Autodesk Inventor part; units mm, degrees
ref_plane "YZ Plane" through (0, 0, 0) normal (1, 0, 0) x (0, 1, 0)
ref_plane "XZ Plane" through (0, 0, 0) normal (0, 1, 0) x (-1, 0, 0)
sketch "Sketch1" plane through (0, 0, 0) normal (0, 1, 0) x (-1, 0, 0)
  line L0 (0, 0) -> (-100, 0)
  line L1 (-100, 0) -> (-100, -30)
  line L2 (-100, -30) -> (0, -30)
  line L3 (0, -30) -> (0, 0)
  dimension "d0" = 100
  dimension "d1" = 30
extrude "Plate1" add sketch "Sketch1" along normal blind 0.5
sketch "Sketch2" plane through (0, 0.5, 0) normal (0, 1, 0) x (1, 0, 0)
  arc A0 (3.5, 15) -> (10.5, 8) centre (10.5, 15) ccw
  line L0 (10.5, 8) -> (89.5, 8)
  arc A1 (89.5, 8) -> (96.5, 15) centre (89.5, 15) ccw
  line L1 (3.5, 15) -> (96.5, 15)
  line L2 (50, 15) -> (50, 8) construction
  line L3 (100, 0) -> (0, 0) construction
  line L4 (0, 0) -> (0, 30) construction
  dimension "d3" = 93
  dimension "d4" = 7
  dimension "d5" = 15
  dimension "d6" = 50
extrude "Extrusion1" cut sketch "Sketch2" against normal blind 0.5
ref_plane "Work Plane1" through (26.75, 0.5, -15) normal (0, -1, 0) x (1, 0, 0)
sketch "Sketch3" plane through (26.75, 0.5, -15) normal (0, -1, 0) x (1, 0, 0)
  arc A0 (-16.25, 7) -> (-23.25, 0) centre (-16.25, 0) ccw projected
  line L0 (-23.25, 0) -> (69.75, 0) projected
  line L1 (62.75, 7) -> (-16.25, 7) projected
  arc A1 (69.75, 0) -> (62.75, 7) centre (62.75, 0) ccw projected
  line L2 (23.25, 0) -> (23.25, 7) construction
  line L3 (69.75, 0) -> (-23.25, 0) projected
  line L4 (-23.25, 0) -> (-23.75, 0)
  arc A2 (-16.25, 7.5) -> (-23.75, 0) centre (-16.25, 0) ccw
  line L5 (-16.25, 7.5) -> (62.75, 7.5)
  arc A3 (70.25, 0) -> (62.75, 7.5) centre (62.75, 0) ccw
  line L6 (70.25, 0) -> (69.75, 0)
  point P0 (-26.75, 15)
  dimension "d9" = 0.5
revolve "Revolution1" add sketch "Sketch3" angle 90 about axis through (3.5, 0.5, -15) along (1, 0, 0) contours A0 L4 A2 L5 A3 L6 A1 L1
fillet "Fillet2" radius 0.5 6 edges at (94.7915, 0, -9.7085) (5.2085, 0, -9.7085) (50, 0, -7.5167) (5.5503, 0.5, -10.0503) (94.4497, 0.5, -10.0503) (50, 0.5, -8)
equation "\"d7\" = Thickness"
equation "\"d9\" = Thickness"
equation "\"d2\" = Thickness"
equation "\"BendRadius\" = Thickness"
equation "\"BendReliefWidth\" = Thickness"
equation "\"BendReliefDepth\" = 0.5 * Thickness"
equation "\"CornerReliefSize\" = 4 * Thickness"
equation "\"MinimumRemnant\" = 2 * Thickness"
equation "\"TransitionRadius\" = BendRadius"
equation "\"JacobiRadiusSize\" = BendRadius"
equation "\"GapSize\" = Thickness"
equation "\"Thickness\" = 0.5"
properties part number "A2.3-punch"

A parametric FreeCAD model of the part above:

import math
import FreeCAD as App
import Part
import Sketcher

V = App.Vector


def edges_at(feature, points):
    """Names of the edges that pass closest to the given points."""
    edges = feature.Shape.Edges
    near = lambda p: min(range(len(edges)), key=lambda i: edges[i].distToShape(Part.Vertex(*p))[0])
    return sorted({f"Edge{near(p) + 1}" for p in points})

doc = App.newDocument("Part")
params = doc.addObject("Spreadsheet::Sheet", "Params")
for row, (alias, value) in enumerate([
    ("sketch1_width", "100 mm"),
    ("sketch1_height", "30 mm"),
    ("pad1_length", "0.5 mm"),
    ("sketch2_radius", "7 mm"),
    ("sketch2_width", "93 mm"),
    ("pocket1_length", "0.5 mm"),
    ("sketch3_width", "0.5 mm"),
    ("sketch3_radius", "7 mm"),
    ("sketch3_width2", "79 mm"),
    ("revolution_angle", "90 deg"),
    ("fillet_radius", "0.5 mm"),
], start=1):
    params.set(f"A{row}", alias)
    params.set(f"B{row}", "=" + value)
    params.setAlias(f"B{row}", alias)

body = doc.addObject("PartDesign::Body", "Body")

# Sketch on XZ plane
sketch1 = body.newObject("Sketcher::SketchObject", "Sketch")
sketch1.AttachmentSupport = (doc.getObject("XZ_Plane"), [""])
sketch1.MapMode = "FlatFace"
sketch1.addGeometry(Part.LineSegment(V(0, -30, 0), V(0, 0, 0)), False)
sketch1.addGeometry(Part.LineSegment(V(0, 0, 0), V(100, 0, 0)), False)
sketch1.addGeometry(Part.LineSegment(V(100, 0, 0), V(100, -30, 0)), False)
sketch1.addGeometry(Part.LineSegment(V(100, -30, 0), V(0, -30, 0)), False)
sketch1.addConstraint(Sketcher.Constraint("Coincident", 0, 2, 1, 1))
sketch1.addConstraint(Sketcher.Constraint("Coincident", 1, 2, 2, 1))
sketch1.addConstraint(Sketcher.Constraint("Coincident", 2, 2, 3, 1))
sketch1.addConstraint(Sketcher.Constraint("Coincident", 3, 2, 0, 1))
sketch1.addConstraint(Sketcher.Constraint("Vertical", 0))
sketch1.addConstraint(Sketcher.Constraint("Horizontal", 1))
sketch1.addConstraint(Sketcher.Constraint("Vertical", 2))
sketch1.addConstraint(Sketcher.Constraint("Horizontal", 3))
sketch1.addConstraint(Sketcher.Constraint("Coincident", 0, 2, -1, 1))
sketch1.addConstraint(Sketcher.Constraint("DistanceX", 1, 1, 1, 2, 100.0))
sketch1.addConstraint(Sketcher.Constraint("DistanceY", 0, 1, 0, 2, 30.0))
sketch1.setExpression("Constraints[9]", "Params.sketch1_width")
sketch1.setExpression("Constraints[10]", "Params.sketch1_height")
pad1 = body.newObject("PartDesign::Pad", "Pad")
pad1.Profile = sketch1
pad1.setExpression("Length", "Params.pad1_length")
pad1.Reversed = True

# Sketch on XZ plane
sketch2 = body.newObject("Sketcher::SketchObject", "Sketch001")
sketch2.AttachmentSupport = (doc.getObject("XZ_Plane"), [""])
sketch2.MapMode = "FlatFace"
sketch2.AttachmentOffset = App.Placement(V(0, 0, -0.5), App.Rotation())
sketch2.addGeometry(Part.LineSegment(V(96, -15, 0), V(4, -15, 0)), False)
sketch2.addGeometry(Part.ArcOfCircle(Part.Circle(V(10, -15, 0), V(0, 0, 1), 7), math.radians(90), math.radians(180)), False)
sketch2.addGeometry(Part.LineSegment(V(10, -8, 0), V(90, -8, 0)), False)
sketch2.addGeometry(Part.ArcOfCircle(Part.Circle(V(90, -15, 0), V(0, 0, 1), 7), math.radians(0), math.radians(90)), False)
sketch2.addConstraint(Sketcher.Constraint("Coincident", 0, 2, 1, 2))
sketch2.addConstraint(Sketcher.Constraint("Tangent", 1, 1, 2, 1))
sketch2.addConstraint(Sketcher.Constraint("Tangent", 2, 2, 3, 2))
sketch2.addConstraint(Sketcher.Constraint("Coincident", 3, 1, 0, 1))
sketch2.addConstraint(Sketcher.Constraint("Horizontal", 0))
sketch2.addConstraint(Sketcher.Constraint("Horizontal", 2))
sketch2.addConstraint(Sketcher.Constraint("Equal", 1, 3))
sketch2.addConstraint(Sketcher.Constraint("Horizontal", 3, 3, 0, 2))
sketch2.addConstraint(Sketcher.Constraint("Radius", 1, 7.0))
sketch2.addConstraint(Sketcher.Constraint("DistanceX", 0, 2, 0, 1, 93.0))
sketch2.addConstraint(Sketcher.Constraint("DistanceY", 1, 3, -1, 1, 15.0))
sketch2.addConstraint(Sketcher.Constraint("DistanceX", -1, 1, 1, 3, 10.5))
sketch2.setExpression("Constraints[8]", "Params.sketch2_radius")
sketch2.setExpression("Constraints[9]", "Params.sketch2_width")
pocket1 = body.newObject("PartDesign::Pocket", "Pocket")
pocket1.Profile = sketch2
pocket1.setExpression("Length", "Params.pocket1_length")
pocket1.Reversed = True

# Sketch on XZ plane
sketch3 = body.newObject("Sketcher::SketchObject", "Sketch002")
sketch3.AttachmentSupport = (doc.getObject("XZ_Plane"), [""])
sketch3.MapMode = "FlatFace"
sketch3.AttachmentOffset = App.Placement(V(0, 0, -0.5), App.Rotation())
sketch3.addGeometry(Part.ArcOfCircle(Part.Circle(V(10.5, -15, 0), V(0, 0, 1), 7), math.radians(90), math.radians(180)), False)
sketch3.addGeometry(Part.LineSegment(V(10.5, -8, 0), V(89.5, -8, 0)), False)
sketch3.addGeometry(Part.ArcOfCircle(Part.Circle(V(89.5, -15, 0), V(0, 0, 1), 7), math.radians(0), math.radians(90)), False)
sketch3.addGeometry(Part.LineSegment(V(96.5, -15, 0), V(97, -15, 0)), False)
sketch3.addGeometry(Part.ArcOfCircle(Part.Circle(V(89.5, -15, 0), V(0, 0, 1), 7.5), math.radians(0), math.radians(90)), False)
sketch3.addGeometry(Part.LineSegment(V(89.5, -7.5, 0), V(10.5, -7.5, 0)), False)
sketch3.addGeometry(Part.ArcOfCircle(Part.Circle(V(10.5, -15, 0), V(0, 0, 1), 7.5), math.radians(90), math.radians(180)), False)
sketch3.addGeometry(Part.LineSegment(V(3, -15, 0), V(3.5, -15, 0)), False)
sketch3.addGeometry(Part.LineSegment(V(3, -15, 0), V(97, -15, 0)), True)  # axis
sketch3.addConstraint(Sketcher.Constraint("Tangent", 0, 1, 1, 1))
sketch3.addConstraint(Sketcher.Constraint("Tangent", 1, 2, 2, 2))
sketch3.addConstraint(Sketcher.Constraint("Coincident", 2, 1, 3, 1))
sketch3.addConstraint(Sketcher.Constraint("Coincident", 3, 2, 4, 1))
sketch3.addConstraint(Sketcher.Constraint("Tangent", 4, 2, 5, 1))
sketch3.addConstraint(Sketcher.Constraint("Tangent", 5, 2, 6, 1))
sketch3.addConstraint(Sketcher.Constraint("Coincident", 6, 2, 7, 1))
sketch3.addConstraint(Sketcher.Constraint("Coincident", 7, 2, 0, 2))
sketch3.addConstraint(Sketcher.Constraint("Horizontal", 1))
sketch3.addConstraint(Sketcher.Constraint("Horizontal", 3))
sketch3.addConstraint(Sketcher.Constraint("Horizontal", 5))
sketch3.addConstraint(Sketcher.Constraint("Horizontal", 7))
sketch3.addConstraint(Sketcher.Constraint("Horizontal", 8))
sketch3.addConstraint(Sketcher.Constraint("Coincident", 4, 3, 2, 3))
sketch3.addConstraint(Sketcher.Constraint("Coincident", 6, 3, 0, 3))
sketch3.addConstraint(Sketcher.Constraint("Coincident", 8, 1, 6, 2))
sketch3.addConstraint(Sketcher.Constraint("Coincident", 8, 2, 3, 2))
sketch3.addConstraint(Sketcher.Constraint("Equal", 0, 2))
sketch3.addConstraint(Sketcher.Constraint("Horizontal", 6, 3, 2, 1))
sketch3.addConstraint(Sketcher.Constraint("DistanceX", 3, 1, 3, 2, 0.5))
sketch3.addConstraint(Sketcher.Constraint("Radius", 0, 7.0))
sketch3.addConstraint(Sketcher.Constraint("DistanceX", 1, 1, 1, 2, 79.0))
sketch3.addConstraint(Sketcher.Constraint("DistanceY", 0, 3, -1, 1, 15.0))
sketch3.addConstraint(Sketcher.Constraint("DistanceX", -1, 1, 3, 2, 97.0))
sketch3.setExpression("Constraints[19]", "Params.sketch3_width")
sketch3.setExpression("Constraints[20]", "Params.sketch3_radius")
sketch3.setExpression("Constraints[21]", "Params.sketch3_width2")
revolution = body.newObject("PartDesign::Revolution", "Revolution")
revolution.Profile = sketch3
revolution.ReferenceAxis = (sketch3, ["Axis0"])
revolution.setExpression("Angle", "Params.revolution_angle")
doc.recompute()

fillet = body.newObject("PartDesign::Fillet", "Fillet")
fillet.Base = (revolution, edges_at(revolution, [
    (94.791, 0, -9.709),
    (5.208, 0, -9.709),
    (50, 0, -7.517),
    (5.55, 0.5, -10.05),
    (94.45, 0.5, -10.05),
    (50, 0.5, -8),
]))
fillet.setExpression("Radius", "Params.fillet_radius")

doc.recompute()
